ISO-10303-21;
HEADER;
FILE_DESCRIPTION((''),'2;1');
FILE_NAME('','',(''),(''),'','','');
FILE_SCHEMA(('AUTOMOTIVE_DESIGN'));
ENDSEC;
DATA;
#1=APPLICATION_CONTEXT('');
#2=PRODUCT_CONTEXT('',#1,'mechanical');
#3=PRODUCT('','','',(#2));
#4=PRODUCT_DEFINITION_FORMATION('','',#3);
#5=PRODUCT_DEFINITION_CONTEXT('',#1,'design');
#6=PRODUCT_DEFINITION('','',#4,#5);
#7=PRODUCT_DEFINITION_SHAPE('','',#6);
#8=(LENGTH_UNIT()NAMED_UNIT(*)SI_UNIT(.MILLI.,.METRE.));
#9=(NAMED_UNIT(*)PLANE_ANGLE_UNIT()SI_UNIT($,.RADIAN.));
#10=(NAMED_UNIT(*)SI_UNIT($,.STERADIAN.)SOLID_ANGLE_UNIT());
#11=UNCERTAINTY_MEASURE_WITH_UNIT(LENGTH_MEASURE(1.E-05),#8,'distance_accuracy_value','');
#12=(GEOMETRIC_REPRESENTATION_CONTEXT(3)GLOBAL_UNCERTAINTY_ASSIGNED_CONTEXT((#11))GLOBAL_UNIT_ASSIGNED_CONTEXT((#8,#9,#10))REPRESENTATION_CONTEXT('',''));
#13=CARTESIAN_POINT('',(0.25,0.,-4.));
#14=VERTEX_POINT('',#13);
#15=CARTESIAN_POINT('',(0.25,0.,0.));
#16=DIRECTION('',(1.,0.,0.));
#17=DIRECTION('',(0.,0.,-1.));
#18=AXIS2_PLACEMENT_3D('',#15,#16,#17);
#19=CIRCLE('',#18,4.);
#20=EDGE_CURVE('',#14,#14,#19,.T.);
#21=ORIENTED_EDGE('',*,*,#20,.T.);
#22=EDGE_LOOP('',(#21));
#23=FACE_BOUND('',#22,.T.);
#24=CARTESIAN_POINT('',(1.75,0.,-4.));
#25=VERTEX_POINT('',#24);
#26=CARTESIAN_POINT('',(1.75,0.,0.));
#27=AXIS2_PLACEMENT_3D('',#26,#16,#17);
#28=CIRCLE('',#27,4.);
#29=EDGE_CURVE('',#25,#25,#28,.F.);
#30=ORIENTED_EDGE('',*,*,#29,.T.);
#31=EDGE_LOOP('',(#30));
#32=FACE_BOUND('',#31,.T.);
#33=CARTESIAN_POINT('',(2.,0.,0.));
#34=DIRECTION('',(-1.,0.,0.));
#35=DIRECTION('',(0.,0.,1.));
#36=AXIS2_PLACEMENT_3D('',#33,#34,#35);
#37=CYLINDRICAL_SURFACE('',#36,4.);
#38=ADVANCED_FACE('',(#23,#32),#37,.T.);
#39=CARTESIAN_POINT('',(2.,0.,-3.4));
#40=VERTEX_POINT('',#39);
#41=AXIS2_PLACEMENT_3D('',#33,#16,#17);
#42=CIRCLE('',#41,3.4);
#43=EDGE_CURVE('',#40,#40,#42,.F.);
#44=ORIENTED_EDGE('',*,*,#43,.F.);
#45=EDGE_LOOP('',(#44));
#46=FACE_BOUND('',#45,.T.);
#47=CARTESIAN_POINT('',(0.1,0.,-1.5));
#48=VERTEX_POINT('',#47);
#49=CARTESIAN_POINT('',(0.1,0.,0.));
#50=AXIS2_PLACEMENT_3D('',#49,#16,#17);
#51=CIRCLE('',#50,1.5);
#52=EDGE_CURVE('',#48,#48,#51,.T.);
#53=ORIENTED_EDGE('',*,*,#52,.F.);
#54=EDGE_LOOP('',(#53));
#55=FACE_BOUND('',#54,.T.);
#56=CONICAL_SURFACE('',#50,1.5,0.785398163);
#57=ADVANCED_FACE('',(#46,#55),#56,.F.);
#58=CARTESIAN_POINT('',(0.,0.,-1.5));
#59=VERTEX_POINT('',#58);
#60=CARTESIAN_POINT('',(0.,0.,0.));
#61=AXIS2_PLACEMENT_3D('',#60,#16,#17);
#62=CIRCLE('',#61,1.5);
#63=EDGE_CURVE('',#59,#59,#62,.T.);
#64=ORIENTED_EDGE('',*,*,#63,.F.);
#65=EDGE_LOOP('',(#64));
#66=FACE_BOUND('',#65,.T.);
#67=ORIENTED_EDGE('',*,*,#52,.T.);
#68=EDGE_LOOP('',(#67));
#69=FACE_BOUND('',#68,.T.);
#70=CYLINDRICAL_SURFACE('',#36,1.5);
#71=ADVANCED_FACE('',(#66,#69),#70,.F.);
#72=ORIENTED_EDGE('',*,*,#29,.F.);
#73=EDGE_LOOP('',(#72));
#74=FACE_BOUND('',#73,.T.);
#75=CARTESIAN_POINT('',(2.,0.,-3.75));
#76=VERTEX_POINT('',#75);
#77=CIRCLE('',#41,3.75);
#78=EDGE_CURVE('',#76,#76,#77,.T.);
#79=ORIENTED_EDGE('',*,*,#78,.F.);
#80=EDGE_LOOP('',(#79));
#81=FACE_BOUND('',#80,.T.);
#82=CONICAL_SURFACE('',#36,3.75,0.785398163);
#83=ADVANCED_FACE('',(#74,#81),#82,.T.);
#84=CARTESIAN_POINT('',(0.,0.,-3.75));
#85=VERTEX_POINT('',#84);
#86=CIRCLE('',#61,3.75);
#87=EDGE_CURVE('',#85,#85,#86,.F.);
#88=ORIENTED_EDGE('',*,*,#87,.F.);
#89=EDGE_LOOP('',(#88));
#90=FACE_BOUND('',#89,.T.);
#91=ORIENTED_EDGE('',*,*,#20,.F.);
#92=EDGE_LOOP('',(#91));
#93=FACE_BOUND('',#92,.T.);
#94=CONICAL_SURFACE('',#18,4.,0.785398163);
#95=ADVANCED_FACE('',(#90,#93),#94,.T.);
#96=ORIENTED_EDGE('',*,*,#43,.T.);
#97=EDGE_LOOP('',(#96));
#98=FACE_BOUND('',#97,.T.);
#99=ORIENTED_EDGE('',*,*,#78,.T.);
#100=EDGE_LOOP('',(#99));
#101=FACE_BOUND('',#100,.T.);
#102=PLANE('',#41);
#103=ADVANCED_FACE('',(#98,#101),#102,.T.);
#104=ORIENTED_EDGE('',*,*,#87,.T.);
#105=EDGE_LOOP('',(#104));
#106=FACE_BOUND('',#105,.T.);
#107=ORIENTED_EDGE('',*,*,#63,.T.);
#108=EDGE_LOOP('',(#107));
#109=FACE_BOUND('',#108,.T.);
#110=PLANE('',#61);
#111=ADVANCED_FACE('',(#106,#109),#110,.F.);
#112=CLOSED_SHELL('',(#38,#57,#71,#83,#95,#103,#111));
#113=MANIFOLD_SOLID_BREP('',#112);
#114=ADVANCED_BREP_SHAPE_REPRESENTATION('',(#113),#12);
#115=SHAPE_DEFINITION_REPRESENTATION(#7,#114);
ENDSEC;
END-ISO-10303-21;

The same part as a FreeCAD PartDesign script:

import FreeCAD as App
import Part
import Sketcher
from FreeCAD import Vector
Q = App.Units.Quantity


def edges_at(feature, points):
    """Names of the edges that pass closest to the given points."""
    edges = feature.Shape.Edges
    near = lambda p: min(range(len(edges)), key=lambda i: edges[i].distToShape(Part.Vertex(*p))[0])
    return sorted({f"Edge{near(p) + 1}" for p in points})

doc = App.newDocument("Part")
body = doc.addObject("PartDesign::Body", "Body")

# Sketch on YZ plane
sketch1 = body.newObject("Sketcher::SketchObject", "Sketch")
sketch1.AttachmentSupport = (doc.getObject("YZ_Plane"), [""])
sketch1.MapMode = "FlatFace"
sketch1.addGeometry([
    Part.Circle(Vector(0, 0, 0), Vector(0, 0, 1), 4),
    Part.Circle(Vector(0, 0, 0), Vector(0, 0, 1), 1.5),
], False)
sketch1.addConstraint([
    Sketcher.Constraint("Coincident", 0, 3, -1, 1),
    Sketcher.Constraint("Coincident", 1, 3, -1, 1),
    Sketcher.Constraint("Diameter", 0, Q("8 mm")),
    Sketcher.Constraint("Diameter", 1, Q("3 mm")),
])
pad1 = body.newObject("PartDesign::Pad", "Pad")
pad1.Profile = sketch1
pad1.Length = 2
doc.recompute()

chamfer = body.newObject("PartDesign::Chamfer", "Chamfer")
chamfer.Base = (pad1, edges_at(pad1, [(2, 0, 1.5)]))
chamfer.Size = 1.9
doc.recompute()

chamfer2 = body.newObject("PartDesign::Chamfer", "Chamfer001")
chamfer2.Base = (chamfer, edges_at(chamfer, [(0, 0, 4), (2, 0, 4)]))
chamfer2.Size = 0.25

doc.recompute()
